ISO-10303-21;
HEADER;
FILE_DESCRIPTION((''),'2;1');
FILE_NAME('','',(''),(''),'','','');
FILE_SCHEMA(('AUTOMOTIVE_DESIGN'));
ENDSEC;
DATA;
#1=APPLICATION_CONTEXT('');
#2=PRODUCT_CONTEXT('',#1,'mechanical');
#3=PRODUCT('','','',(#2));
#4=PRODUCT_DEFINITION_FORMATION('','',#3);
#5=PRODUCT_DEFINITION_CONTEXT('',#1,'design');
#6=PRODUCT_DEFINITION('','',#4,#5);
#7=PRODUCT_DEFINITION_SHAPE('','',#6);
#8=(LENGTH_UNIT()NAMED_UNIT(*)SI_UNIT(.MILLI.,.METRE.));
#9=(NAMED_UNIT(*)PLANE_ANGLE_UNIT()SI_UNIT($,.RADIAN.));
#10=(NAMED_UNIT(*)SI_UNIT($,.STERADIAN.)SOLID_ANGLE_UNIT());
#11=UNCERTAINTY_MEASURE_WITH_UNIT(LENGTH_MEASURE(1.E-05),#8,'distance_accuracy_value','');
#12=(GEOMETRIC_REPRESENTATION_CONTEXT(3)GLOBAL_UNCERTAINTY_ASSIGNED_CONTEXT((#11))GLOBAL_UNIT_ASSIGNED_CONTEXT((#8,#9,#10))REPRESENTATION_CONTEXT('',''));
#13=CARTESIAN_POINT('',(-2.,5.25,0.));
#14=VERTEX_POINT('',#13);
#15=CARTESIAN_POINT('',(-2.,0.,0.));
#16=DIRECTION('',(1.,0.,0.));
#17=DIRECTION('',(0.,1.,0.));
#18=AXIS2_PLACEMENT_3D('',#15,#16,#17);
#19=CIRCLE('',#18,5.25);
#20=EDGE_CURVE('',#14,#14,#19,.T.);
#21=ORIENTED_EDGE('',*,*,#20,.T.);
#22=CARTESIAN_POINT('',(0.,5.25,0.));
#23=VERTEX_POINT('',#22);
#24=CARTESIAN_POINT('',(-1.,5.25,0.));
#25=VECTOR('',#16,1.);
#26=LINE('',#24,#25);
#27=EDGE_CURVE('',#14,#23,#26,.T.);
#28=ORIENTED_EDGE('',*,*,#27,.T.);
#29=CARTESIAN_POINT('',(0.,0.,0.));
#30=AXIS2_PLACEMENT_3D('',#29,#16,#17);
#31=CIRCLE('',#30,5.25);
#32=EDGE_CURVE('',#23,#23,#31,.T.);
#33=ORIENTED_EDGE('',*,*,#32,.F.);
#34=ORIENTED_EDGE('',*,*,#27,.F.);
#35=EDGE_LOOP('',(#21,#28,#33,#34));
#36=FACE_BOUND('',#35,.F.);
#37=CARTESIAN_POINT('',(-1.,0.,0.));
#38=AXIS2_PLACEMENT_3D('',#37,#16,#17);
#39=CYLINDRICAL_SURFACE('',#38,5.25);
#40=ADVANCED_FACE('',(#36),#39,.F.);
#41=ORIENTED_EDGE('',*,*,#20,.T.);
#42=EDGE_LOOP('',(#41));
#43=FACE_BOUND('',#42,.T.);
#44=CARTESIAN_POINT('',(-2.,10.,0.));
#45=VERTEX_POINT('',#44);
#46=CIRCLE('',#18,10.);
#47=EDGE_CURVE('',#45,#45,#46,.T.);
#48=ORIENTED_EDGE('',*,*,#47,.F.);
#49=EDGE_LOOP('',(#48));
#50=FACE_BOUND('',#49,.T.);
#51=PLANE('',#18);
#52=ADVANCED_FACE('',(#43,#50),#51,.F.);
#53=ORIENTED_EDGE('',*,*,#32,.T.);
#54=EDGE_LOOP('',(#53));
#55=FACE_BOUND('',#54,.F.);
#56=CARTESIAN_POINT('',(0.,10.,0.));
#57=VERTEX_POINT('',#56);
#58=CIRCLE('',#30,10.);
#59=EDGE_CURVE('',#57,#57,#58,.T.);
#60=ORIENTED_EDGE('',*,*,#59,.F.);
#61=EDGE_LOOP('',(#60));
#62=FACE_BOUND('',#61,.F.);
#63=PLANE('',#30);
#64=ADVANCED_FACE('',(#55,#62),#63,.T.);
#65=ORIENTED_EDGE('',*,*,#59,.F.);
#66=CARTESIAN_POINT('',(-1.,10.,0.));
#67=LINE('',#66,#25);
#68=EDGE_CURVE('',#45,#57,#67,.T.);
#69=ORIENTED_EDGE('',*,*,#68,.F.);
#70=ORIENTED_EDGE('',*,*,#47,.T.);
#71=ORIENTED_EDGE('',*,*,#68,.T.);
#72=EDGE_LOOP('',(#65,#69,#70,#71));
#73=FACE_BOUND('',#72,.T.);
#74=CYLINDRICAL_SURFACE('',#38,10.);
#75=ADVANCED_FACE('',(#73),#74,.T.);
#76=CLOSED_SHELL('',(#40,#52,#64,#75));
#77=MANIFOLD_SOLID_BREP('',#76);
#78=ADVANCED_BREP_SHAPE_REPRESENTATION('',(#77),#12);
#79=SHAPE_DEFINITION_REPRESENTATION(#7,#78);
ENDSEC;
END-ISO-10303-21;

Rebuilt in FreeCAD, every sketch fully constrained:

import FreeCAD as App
import Part
import Sketcher

V = App.Vector
Q = App.Units.Quantity


def add_polygon(sketch, points):
    """Adds a closed chain of lines whose ends are joined by coincident constraints."""
    first, n = sketch.GeometryCount, len(points)
    for a, b in zip(points, points[1:] + points[:1]):
        sketch.addGeometry(Part.LineSegment(App.Vector(*a, 0), App.Vector(*b, 0)), False)
    for i in range(n):
        sketch.addConstraint(Sketcher.Constraint("Coincident", first + i, 2, first + (i + 1) % n, 1))

doc = App.newDocument("Part")
params = doc.addObject("Spreadsheet::Sheet", "Params")
for row, (alias, value) in enumerate([
    ("sketch1_width", "2 mm"),
    ("sketch1_height", "4.75 mm"),
    ("revolution_angle", "360 deg"),
], start=1):
    params.set(f"A{row}", alias)
    params.set(f"B{row}", "=" + value)
    params.setAlias(f"B{row}", alias)

body = doc.addObject("PartDesign::Body", "Body")

# Sketch on XY plane
sketch1 = body.newObject("Sketcher::SketchObject", "Sketch")
sketch1.AttachmentSupport = (doc.getObject("XY_Plane"), [""])
sketch1.MapMode = "FlatFace"
add_polygon(sketch1, [(-2, 10), (-2, 5.2), (0, 5.2), (0, 10)])  # lines 0-3
sketch1.addConstraint(Sketcher.Constraint("Vertical", 0))
sketch1.addConstraint(Sketcher.Constraint("Horizontal", 1))
sketch1.addConstraint(Sketcher.Constraint("Vertical", 2))
sketch1.addConstraint(Sketcher.Constraint("Horizontal", 3))
sketch1.addConstraint(Sketcher.Constraint("PointOnObject", 1, 2, -2))
sketch1.addConstraint(Sketcher.Constraint("DistanceX", 1, 1, 1, 2, Q("2 mm")))
sketch1.addConstraint(Sketcher.Constraint("DistanceY", -1, 1, 2, 2, Q("10 mm")))
sketch1.addConstraint(Sketcher.Constraint("DistanceY", 0, 2, 0, 1, Q("4.75 mm")))
sketch1.setExpression("Constraints[9]", "Params.sketch1_width")
sketch1.setExpression("Constraints[11]", "Params.sketch1_height")
revolution = body.newObject("PartDesign::Revolution", "Revolution")
revolution.Profile = sketch1
revolution.ReferenceAxis = (sketch1, ["H_Axis"])
revolution.setExpression("Angle", "Params.revolution_angle")

doc.recompute()
